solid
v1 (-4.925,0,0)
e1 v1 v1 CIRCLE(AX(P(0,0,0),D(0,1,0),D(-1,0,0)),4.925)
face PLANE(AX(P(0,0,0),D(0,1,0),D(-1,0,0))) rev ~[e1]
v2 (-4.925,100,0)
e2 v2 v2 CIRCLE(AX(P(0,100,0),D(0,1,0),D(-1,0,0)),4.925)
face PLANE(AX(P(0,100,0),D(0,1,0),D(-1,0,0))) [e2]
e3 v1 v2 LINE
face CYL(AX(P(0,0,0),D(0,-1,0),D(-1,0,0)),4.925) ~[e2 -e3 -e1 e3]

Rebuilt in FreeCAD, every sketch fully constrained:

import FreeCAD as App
import Part
import Sketcher
from FreeCAD import Vector
Q = App.Units.Quantity

doc = App.newDocument("Part")
body = doc.addObject("PartDesign::Body", "Body")

# Sketch on XZ plane
sketch1 = body.newObject("Sketcher::SketchObject", "Sketch")
sketch1.AttachmentSupport = (doc.getObject("XZ_Plane"), [""])
sketch1.MapMode = "FlatFace"
sketch1.addGeometry(Part.Circle(Vector(0, 0, 0), Vector(0, 0, 1), 4.9), False)
sketch1.addConstraint([
    Sketcher.Constraint("Coincident", 0, 3, -1, 1),
    Sketcher.Constraint("Diameter", 0, Q("0.3878 in")),
])
pad1 = body.newObject("PartDesign::Pad", "Pad")
pad1.Profile = sketch1
pad1.Length = Q("3.9370079 in")
pad1.Reversed = True

doc.recompute()
